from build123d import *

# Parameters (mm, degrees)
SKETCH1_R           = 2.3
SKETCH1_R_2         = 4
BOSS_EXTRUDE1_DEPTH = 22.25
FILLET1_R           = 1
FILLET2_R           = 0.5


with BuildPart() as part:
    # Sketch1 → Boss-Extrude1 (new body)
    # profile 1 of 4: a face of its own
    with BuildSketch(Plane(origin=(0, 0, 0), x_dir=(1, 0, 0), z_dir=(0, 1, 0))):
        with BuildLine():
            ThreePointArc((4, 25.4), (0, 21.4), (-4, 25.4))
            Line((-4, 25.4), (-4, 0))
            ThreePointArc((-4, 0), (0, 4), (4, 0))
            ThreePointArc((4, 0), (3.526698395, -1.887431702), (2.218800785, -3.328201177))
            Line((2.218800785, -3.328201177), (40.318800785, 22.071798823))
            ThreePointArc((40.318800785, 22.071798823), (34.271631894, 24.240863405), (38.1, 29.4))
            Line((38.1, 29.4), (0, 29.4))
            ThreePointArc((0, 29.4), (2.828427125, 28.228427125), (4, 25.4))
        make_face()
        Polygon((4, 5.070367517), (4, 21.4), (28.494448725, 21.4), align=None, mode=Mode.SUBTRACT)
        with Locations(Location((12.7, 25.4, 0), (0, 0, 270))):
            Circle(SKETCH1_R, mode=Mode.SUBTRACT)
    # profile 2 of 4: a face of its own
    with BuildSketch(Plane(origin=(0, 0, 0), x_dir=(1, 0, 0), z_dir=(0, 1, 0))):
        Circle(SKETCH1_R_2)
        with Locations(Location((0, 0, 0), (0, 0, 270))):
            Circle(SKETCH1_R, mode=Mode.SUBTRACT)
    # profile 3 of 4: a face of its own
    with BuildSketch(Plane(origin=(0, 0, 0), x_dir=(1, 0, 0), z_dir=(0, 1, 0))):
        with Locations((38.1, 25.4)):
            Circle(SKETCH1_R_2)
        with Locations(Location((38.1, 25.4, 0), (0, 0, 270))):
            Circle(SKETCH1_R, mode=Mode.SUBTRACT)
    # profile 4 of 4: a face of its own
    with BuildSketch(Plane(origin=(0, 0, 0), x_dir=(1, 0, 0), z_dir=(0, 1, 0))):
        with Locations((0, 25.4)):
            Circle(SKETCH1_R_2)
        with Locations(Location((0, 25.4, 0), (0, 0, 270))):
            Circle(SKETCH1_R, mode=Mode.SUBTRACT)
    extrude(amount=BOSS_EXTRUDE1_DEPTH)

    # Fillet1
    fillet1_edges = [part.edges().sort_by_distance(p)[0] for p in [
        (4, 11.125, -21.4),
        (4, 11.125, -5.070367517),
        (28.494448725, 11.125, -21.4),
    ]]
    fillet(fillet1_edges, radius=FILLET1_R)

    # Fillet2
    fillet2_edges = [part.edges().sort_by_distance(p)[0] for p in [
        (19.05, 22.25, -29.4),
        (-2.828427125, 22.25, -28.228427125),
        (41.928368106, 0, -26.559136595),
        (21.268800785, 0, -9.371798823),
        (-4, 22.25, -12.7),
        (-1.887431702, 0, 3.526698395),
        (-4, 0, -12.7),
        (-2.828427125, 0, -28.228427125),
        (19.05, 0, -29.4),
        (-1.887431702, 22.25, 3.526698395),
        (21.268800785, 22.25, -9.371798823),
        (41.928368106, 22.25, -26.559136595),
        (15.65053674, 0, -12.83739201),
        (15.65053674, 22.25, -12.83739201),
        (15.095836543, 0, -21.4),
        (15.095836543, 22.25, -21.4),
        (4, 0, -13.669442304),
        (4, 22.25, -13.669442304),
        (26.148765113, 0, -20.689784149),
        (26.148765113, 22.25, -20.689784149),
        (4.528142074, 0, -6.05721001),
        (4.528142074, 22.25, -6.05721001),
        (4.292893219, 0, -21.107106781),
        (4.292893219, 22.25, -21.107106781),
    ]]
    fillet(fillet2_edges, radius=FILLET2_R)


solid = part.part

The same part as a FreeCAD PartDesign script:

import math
import FreeCAD as App
import Part
import Sketcher
from FreeCAD import Vector


def edges_at(feature, points):
    """Names of the edges that pass closest to the given points."""
    edges = feature.Shape.Edges
    near = lambda p: min(range(len(edges)), key=lambda i: edges[i].distToShape(Part.Vertex(*p))[0])
    return sorted({f"Edge{near(p) + 1}" for p in points})

doc = App.newDocument("Part")
body = doc.addObject("PartDesign::Body", "Body")

# Sketch on XZ plane
sketch1 = body.newObject("Sketcher::SketchObject", "Sketch")
sketch1.AttachmentSupport = (doc.getObject("XZ_Plane"), [""])
sketch1.MapMode = "FlatFace"
sketch1.addGeometry(Part.LineSegment(Vector(-4, -25.4, 0), Vector(-4, 0, 0)), False)
sketch1.addGeometry(Part.ArcOfCircle(Part.Circle(Vector(0, 0, 0), Vector(0, 0, 1), 4), math.radians(56.309932), math.radians(180)), False)
sketch1.addGeometry(Part.LineSegment(Vector(2.218801, 3.328201, 0), Vector(40.318801, -22.071799, 0)), False)
sketch1.addGeometry(Part.ArcOfCircle(Part.Circle(Vector(38.1, -25.4, 0), Vector(0, 0, 1), 4), math.radians(-90), math.radians(56.309932)), False)
sketch1.addGeometry(Part.LineSegment(Vector(38.1, -29.4, 0), Vector(0, -29.4, 0)), False)
sketch1.addGeometry(Part.ArcOfCircle(Part.Circle(Vector(0, -25.4, 0), Vector(0, 0, 1), 4), math.radians(180), math.radians(270)), False)
sketch1.addGeometry(Part.LineSegment(Vector(28.494449, -21.4, 0), Vector(4, -5.070368, 0)), False)
sketch1.addGeometry(Part.LineSegment(Vector(4, -5.070368, 0), Vector(4, -21.4, 0)), False)
sketch1.addGeometry(Part.LineSegment(Vector(4, -21.4, 0), Vector(28.494449, -21.4, 0)), False)
sketch1.addGeometry(Part.Circle(Vector(12.7, -25.4, 0), Vector(0, 0, 1), 2.3), False)
sketch1.addGeometry(Part.Circle(Vector(0, -25.4, 0), Vector(0, 0, 1), 2.3), False)
sketch1.addGeometry(Part.Circle(Vector(0, 0, 0), Vector(0, 0, 1), 2.3), False)
sketch1.addGeometry(Part.Circle(Vector(38.1, -25.4, 0), Vector(0, 0, 1), 2.3), False)
sketch1.addConstraint(Sketcher.Constraint("Tangent", 0, 2, 1, 2))
sketch1.addConstraint(Sketcher.Constraint("Tangent", 1, 1, 2, 1))
sketch1.addConstraint(Sketcher.Constraint("Tangent", 2, 2, 3, 2))
sketch1.addConstraint(Sketcher.Constraint("Tangent", 3, 1, 4, 1))
sketch1.addConstraint(Sketcher.Constraint("Tangent", 4, 2, 5, 2))
sketch1.addConstraint(Sketcher.Constraint("Tangent", 5, 1, 0, 1))
sketch1.addConstraint(Sketcher.Constraint("Coincident", 6, 2, 7, 1))
sketch1.addConstraint(Sketcher.Constraint("Coincident", 7, 2, 8, 1))
sketch1.addConstraint(Sketcher.Constraint("Coincident", 8, 2, 6, 1))
sketch1.addConstraint(Sketcher.Constraint("Vertical", 0))
sketch1.addConstraint(Sketcher.Constraint("Horizontal", 4))
sketch1.addConstraint(Sketcher.Constraint("Vertical", 7))
sketch1.addConstraint(Sketcher.Constraint("Horizontal", 8))
sketch1.addConstraint(Sketcher.Constraint("Coincident", 1, 3, -1, 1))
sketch1.addConstraint(Sketcher.Constraint("Coincident", 11, 3, -1, 1))
sketch1.addConstraint(Sketcher.Constraint("Coincident", 10, 3, 5, 3))
sketch1.addConstraint(Sketcher.Constraint("Coincident", 12, 3, 3, 3))
sketch1.addConstraint(Sketcher.Constraint("Equal", 1, 3))
sketch1.addConstraint(Sketcher.Constraint("Equal", 3, 5))
sketch1.addConstraint(Sketcher.Constraint("Equal", 9, 10))
sketch1.addConstraint(Sketcher.Constraint("Equal", 10, 11))
sketch1.addConstraint(Sketcher.Constraint("Equal", 11, 12))
sketch1.addConstraint(Sketcher.Constraint("Parallel", 2, 6))
sketch1.addConstraint(Sketcher.Constraint("Horizontal", 5, 3, 9, 3))
sketch1.addConstraint(Sketcher.Constraint("Radius", 1, 4.0))
sketch1.addConstraint(Sketcher.Constraint("Diameter", 9, 4.6))
sketch1.addConstraint(Sketcher.Constraint("DistanceX", 4, 2, 4, 1, 38.1))
sketch1.addConstraint(Sketcher.Constraint("DistanceY", 0, 1, 0, 2, 25.4))
sketch1.addConstraint(Sketcher.Constraint("DistanceX", -1, 1, 6, 2, 4.0))
sketch1.addConstraint(Sketcher.Constraint("DistanceY", 5, 3, 7, 2, 4.0))
sketch1.addConstraint(Sketcher.Constraint("DistanceX", -1, 1, 9, 3, 12.7))
sketch1.addConstraint(Sketcher.Constraint("DistanceX", 8, 1, 8, 2, 24.494449))
pad1 = body.newObject("PartDesign::Pad", "Pad")
pad1.Profile = sketch1
pad1.Length = 22.25
pad1.Reversed = True
doc.recompute()

fillet = body.newObject("PartDesign::Fillet", "Fillet")
fillet.Base = (pad1, edges_at(pad1, [(4, 11.125, -21.4), (4, 11.125, -5.07), (28.494, 11.125, -21.4)]))
fillet.Radius = 1
doc.recompute()

fillet2 = body.newObject("PartDesign::Fillet", "Fillet001")
fillet2.Base = (fillet, edges_at(fillet, [
    (19.05, 22.25, -29.4),
    (-2.828, 22.25, -28.228),
    (41.928, 0, -26.559),
    (21.269, 0, -9.372),
    (-4, 22.25, -12.7),
    (-1.887, 0, 3.527),
    (-4, 0, -12.7),
    (-2.828, 0, -28.228),
    (19.05, 0, -29.4),
    (-1.887, 22.25, 3.527),
    (21.269, 22.25, -9.372),
    (41.928, 22.25, -26.559),
    (15.651, 0, -12.837),
    (15.651, 22.25, -12.837),
    (15.096, 0, -21.4),
    (15.096, 22.25, -21.4),
    (4, 0, -13.669),
    (4, 22.25, -13.669),
    (26.149, 0, -20.69),
    (26.149, 22.25, -20.69),
    (4.528, 0, -6.057),
    (4.528, 22.25, -6.057),
    (4.293, 0, -21.107),
    (4.293, 22.25, -21.107),
]))
fillet2.Radius = 0.5

doc.recompute()
